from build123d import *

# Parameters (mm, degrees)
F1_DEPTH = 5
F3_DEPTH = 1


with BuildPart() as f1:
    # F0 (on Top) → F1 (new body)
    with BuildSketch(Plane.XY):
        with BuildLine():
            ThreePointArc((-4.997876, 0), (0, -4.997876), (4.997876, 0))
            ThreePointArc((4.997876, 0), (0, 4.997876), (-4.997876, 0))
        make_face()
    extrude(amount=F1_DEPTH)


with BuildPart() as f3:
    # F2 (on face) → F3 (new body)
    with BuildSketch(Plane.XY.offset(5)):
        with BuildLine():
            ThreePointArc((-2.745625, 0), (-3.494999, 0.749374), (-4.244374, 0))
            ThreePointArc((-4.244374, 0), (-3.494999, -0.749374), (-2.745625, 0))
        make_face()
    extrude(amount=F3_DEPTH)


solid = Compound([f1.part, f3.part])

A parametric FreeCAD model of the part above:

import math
import FreeCAD as App
import Part
import Sketcher
from FreeCAD import Vector

doc = App.newDocument("Part")
body = doc.addObject("PartDesign::Body", "Body")

# Sketch on XY plane
sketch1 = body.newObject("Sketcher::SketchObject", "Sketch")
sketch1.AttachmentSupport = (doc.getObject("XY_Plane"), [""])
sketch1.MapMode = "FlatFace"
sketch1.addGeometry(Part.Circle(Vector(0, 0, 0), Vector(0, 0, 1), 5), False)
sketch1.addConstraint([
    Sketcher.Constraint("Coincident", 0, 3, -1, 1),
    Sketcher.Constraint("Diameter", 0, 9.995752),
])
pad1 = body.newObject("PartDesign::Pad", "Pad")
pad1.Profile = sketch1
pad1.Length = 5
body2 = doc.addObject("PartDesign::Body", "Body001")

# Sketch on XY plane
sketch2 = body2.newObject("Sketcher::SketchObject", "Sketch001")
sketch2.AttachmentSupport = (doc.getObject("XY_Plane001"), [""])
sketch2.MapMode = "FlatFace"
sketch2.AttachmentOffset = App.Placement(Vector(0, 0, 5), App.Rotation())
sketch2.addGeometry([
    Part.ArcOfCircle(Part.Circle(Vector(-3.5, 0, 0), Vector(0, 0, 1), 0.7), math.radians(0), math.radians(180)),
    Part.ArcOfCircle(Part.Circle(Vector(-3.5, 0, 0), Vector(0, 0, 1), 0.7), math.radians(-180), math.radians(0)),
], False)
sketch2.addConstraint([
    Sketcher.Constraint("Tangent", 0, 1, 1, 2),
    Sketcher.Constraint("Coincident", 1, 1, 0, 2),
    Sketcher.Constraint("PointOnObject", 0, 3, -1),
    Sketcher.Constraint("PointOnObject", 0, 1, -1),
    Sketcher.Constraint("PointOnObject", 1, 1, -1),
    Sketcher.Constraint("DistanceX", 0, 3, -1, 1, 3.495),
    Sketcher.Constraint("Radius", 0, 0.749375),
])
pad2 = body2.newObject("PartDesign::Pad", "Pad001")
pad2.Profile = sketch2
pad2.Length = 1

doc.recompute()
